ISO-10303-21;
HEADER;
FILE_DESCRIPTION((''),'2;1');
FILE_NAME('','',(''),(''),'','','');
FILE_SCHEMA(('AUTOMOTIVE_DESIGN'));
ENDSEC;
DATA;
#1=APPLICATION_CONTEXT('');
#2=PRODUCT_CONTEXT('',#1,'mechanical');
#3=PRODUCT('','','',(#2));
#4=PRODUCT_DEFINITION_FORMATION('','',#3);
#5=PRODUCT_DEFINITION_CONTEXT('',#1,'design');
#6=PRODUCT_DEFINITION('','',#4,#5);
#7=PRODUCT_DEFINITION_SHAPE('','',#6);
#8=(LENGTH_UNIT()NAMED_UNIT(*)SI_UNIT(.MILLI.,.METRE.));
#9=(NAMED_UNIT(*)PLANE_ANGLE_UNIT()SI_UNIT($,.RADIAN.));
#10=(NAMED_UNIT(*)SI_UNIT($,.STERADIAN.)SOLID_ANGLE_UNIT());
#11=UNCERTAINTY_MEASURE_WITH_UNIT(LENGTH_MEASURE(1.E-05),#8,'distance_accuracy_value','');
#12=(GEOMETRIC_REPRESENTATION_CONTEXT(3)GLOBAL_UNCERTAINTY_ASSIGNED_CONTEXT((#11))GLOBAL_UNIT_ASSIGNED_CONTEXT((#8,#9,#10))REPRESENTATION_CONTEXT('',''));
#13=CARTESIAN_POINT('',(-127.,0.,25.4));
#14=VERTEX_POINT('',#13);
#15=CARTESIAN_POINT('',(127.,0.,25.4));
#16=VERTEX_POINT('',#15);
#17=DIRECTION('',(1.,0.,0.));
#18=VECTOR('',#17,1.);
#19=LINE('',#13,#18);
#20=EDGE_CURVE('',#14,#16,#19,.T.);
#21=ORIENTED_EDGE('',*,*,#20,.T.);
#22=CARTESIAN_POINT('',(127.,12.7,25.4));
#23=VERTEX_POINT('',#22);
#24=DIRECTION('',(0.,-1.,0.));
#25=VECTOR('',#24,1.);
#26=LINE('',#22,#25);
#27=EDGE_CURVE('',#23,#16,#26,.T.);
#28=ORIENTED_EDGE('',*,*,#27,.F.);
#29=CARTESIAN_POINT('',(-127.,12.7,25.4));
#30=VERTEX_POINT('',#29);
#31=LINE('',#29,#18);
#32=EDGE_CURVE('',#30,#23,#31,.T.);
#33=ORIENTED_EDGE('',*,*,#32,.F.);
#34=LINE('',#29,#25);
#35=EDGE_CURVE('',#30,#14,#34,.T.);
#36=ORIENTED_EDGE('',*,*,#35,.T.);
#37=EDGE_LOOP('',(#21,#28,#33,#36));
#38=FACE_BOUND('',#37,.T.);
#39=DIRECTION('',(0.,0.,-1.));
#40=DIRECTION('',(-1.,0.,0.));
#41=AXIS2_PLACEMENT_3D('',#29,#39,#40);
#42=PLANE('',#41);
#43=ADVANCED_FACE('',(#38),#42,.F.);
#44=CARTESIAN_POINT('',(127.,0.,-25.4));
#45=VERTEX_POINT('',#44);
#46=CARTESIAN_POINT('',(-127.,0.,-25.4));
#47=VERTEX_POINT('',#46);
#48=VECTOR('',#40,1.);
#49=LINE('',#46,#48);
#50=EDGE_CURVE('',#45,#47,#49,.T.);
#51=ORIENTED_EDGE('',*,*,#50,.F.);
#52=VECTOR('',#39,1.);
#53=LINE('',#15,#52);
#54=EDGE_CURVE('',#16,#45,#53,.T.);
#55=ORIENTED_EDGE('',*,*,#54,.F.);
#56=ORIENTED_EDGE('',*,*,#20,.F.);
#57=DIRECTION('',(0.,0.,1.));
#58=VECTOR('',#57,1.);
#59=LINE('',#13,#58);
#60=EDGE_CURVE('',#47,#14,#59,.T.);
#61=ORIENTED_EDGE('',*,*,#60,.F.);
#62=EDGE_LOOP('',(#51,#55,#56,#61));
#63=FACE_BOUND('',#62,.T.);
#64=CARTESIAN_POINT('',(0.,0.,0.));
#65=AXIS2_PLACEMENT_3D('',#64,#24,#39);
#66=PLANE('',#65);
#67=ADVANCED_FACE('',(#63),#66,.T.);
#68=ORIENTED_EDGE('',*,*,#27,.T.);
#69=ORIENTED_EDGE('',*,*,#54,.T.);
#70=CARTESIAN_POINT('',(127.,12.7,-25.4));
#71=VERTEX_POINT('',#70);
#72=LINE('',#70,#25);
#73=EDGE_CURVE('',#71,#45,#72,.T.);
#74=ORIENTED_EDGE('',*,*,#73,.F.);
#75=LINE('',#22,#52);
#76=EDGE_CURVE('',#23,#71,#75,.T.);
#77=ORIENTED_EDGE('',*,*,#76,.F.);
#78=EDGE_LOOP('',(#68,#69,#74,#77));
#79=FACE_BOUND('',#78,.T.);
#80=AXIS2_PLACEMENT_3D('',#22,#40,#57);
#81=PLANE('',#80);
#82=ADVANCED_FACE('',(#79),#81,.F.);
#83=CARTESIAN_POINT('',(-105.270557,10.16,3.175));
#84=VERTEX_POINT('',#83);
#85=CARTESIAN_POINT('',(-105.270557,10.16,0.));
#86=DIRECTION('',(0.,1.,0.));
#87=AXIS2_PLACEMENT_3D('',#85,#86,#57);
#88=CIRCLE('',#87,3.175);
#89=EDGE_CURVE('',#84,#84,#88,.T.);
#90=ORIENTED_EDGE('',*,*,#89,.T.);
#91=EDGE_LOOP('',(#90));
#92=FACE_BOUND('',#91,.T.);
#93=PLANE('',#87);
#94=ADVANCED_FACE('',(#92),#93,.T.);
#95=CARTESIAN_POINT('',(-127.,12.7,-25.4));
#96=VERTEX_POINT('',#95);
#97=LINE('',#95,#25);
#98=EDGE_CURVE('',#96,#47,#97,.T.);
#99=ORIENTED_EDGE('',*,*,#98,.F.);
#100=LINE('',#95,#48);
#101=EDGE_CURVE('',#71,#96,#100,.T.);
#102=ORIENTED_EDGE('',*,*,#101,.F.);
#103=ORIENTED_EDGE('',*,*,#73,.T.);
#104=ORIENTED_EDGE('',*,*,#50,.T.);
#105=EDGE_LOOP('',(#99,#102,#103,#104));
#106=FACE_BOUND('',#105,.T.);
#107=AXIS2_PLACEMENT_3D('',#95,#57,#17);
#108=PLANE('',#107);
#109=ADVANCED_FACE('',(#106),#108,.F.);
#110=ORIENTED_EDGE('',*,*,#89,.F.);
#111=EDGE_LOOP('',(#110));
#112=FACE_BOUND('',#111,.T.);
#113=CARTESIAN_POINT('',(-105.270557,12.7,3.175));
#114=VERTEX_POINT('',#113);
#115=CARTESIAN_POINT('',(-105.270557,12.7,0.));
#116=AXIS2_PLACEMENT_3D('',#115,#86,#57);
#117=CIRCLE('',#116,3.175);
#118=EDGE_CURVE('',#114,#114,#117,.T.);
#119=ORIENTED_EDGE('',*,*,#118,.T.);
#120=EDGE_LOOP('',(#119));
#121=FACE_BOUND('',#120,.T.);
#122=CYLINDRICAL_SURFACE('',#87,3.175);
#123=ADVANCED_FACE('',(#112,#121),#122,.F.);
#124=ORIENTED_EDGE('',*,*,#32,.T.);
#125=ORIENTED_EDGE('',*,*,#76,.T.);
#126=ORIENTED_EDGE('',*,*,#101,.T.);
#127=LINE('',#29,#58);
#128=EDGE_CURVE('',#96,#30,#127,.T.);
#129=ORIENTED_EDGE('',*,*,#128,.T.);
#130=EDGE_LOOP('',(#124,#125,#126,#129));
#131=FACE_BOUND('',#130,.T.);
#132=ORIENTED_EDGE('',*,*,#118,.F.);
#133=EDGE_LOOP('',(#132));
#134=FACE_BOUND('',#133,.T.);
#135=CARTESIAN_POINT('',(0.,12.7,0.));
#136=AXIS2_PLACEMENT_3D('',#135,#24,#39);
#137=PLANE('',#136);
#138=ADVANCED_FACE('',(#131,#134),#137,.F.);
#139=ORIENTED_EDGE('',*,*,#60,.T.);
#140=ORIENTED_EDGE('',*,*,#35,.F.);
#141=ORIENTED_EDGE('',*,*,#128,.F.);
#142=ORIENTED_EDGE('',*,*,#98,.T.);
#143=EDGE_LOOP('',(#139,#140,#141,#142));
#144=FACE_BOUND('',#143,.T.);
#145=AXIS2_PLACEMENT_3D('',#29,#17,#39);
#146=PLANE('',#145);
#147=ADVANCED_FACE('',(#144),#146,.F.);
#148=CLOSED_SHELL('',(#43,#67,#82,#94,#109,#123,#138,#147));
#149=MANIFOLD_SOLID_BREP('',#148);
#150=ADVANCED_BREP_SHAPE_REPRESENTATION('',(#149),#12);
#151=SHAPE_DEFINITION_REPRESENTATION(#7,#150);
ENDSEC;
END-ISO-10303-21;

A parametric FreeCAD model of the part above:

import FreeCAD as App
import Part
import Sketcher
from FreeCAD import Vector
Q = App.Units.Quantity


def add_polygon(sketch, points):
    """Adds a closed chain of lines whose ends are joined by coincident constraints."""
    first, n = sketch.GeometryCount, len(points)
    for a, b in zip(points, points[1:] + points[:1]):
        sketch.addGeometry(Part.LineSegment(App.Vector(*a, 0), App.Vector(*b, 0)), False)
    for i in range(n):
        sketch.addConstraint(Sketcher.Constraint("Coincident", first + i, 2, first + (i + 1) % n, 1))

doc = App.newDocument("Part")
body = doc.addObject("PartDesign::Body", "Body")

# Sketch on XZ plane
sketch1 = body.newObject("Sketcher::SketchObject", "Sketch")
sketch1.AttachmentSupport = (doc.getObject("XZ_Plane"), [""])
sketch1.MapMode = "FlatFace"
add_polygon(sketch1, [(-127, -25.4), (-127, 25.4), (127, 25.4), (127, -25.4)])  # lines 0-3
sketch1.addConstraint([
    Sketcher.Constraint("Vertical", 0),
    Sketcher.Constraint("Horizontal", 1),
    Sketcher.Constraint("Vertical", 2),
    Sketcher.Constraint("Horizontal", 3),
    Sketcher.Constraint("Symmetric", 0, 2, 2, 2, -1, 1),
    Sketcher.Constraint("DistanceX", 1, 1, 1, 2, Q("10 in")),
    Sketcher.Constraint("DistanceY", 0, 1, 0, 2, Q("2 in")),
])
pad1 = body.newObject("PartDesign::Pad", "Pad")
pad1.Profile = sketch1
pad1.Length = Q("0.5 in")
pad1.Reversed = True

# Sketch on XZ plane
sketch2 = body.newObject("Sketcher::SketchObject", "Sketch001")
sketch2.AttachmentSupport = (doc.getObject("XZ_Plane"), [""])
sketch2.MapMode = "FlatFace"
sketch2.AttachmentOffset = App.Placement(Vector(0, 0, -0.5 * 25.4), App.Rotation())
sketch2.addGeometry(Part.Circle(Vector(-105.270557, 0, 0), Vector(0, 0, 1), 3.175), False)
sketch2.addConstraint([
    Sketcher.Constraint("PointOnObject", 0, 3, -1),
    Sketcher.Constraint("Diameter", 0, Q("0.25 in")),
    Sketcher.Constraint("DistanceX", 0, 3, -1, 1, 105.270557),
])
pocket1 = body.newObject("PartDesign::Pocket", "Pocket")
pocket1.Profile = sketch2
pocket1.Length = Q("0.1 in")
pocket1.Reversed = True

doc.recompute()
